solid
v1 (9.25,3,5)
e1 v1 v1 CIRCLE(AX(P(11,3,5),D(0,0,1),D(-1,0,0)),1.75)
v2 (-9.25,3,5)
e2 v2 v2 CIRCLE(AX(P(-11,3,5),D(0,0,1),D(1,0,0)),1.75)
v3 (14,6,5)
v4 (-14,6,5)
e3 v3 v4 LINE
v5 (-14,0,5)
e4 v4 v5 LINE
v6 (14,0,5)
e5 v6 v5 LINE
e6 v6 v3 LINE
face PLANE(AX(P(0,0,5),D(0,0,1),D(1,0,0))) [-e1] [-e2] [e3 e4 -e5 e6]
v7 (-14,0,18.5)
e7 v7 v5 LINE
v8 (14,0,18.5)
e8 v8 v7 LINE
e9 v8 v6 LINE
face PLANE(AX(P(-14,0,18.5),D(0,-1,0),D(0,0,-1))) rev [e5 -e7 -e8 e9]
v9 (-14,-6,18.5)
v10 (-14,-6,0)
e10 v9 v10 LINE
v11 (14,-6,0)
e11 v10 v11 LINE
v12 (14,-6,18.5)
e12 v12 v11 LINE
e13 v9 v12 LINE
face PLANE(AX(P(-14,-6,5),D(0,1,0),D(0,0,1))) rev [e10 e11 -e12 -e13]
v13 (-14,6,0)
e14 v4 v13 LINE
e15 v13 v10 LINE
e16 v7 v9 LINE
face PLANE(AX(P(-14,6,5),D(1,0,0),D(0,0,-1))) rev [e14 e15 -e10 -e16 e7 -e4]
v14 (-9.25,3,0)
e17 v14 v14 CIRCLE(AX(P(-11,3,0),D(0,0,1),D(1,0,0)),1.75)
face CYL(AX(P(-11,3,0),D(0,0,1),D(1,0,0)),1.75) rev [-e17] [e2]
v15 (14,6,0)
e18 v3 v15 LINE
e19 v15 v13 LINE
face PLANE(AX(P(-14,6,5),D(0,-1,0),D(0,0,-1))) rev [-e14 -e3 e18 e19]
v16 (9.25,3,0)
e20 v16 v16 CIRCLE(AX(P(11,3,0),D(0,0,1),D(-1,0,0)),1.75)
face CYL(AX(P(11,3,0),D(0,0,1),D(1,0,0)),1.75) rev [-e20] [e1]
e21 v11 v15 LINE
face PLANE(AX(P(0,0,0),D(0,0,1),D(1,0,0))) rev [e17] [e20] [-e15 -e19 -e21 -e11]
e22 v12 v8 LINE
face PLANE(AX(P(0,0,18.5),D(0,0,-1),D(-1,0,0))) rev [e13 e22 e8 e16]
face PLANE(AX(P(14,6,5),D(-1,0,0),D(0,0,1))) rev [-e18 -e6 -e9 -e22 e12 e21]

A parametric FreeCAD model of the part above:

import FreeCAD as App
import Part
import Sketcher
from FreeCAD import Vector

doc = App.newDocument("Part")
body = doc.addObject("PartDesign::Body", "Body")

# Sketch on XY plane
sketch1 = body.newObject("Sketcher::SketchObject", "Sketch")
sketch1.AttachmentSupport = (doc.getObject("XY_Plane"), [""])
sketch1.MapMode = "FlatFace"
sketch1.addGeometry(Part.LineSegment(Vector(-14, 6, 0), Vector(-14, -6, 0)), False)
sketch1.addGeometry(Part.LineSegment(Vector(-14, -6, 0), Vector(14, -6, 0)), False)
sketch1.addGeometry(Part.LineSegment(Vector(14, -6, 0), Vector(14, 6, 0)), False)
sketch1.addGeometry(Part.LineSegment(Vector(14, 6, 0), Vector(-14, 6, 0)), False)
sketch1.addConstraint(Sketcher.Constraint("Coincident", 0, 2, 1, 1))
sketch1.addConstraint(Sketcher.Constraint("Coincident", 1, 2, 2, 1))
sketch1.addConstraint(Sketcher.Constraint("Coincident", 2, 2, 3, 1))
sketch1.addConstraint(Sketcher.Constraint("Coincident", 3, 2, 0, 1))
sketch1.addConstraint(Sketcher.Constraint("Vertical", 0))
sketch1.addConstraint(Sketcher.Constraint("Horizontal", 1))
sketch1.addConstraint(Sketcher.Constraint("Vertical", 2))
sketch1.addConstraint(Sketcher.Constraint("Horizontal", 3))
sketch1.addConstraint(Sketcher.Constraint("Symmetric", 0, 2, 2, 2, -1, 1))
sketch1.addConstraint(Sketcher.Constraint("DistanceX", 1, 1, 1, 2, 28.0))
sketch1.addConstraint(Sketcher.Constraint("DistanceY", 0, 2, 0, 1, 12.0))
pad1 = body.newObject("PartDesign::Pad", "Pad")
pad1.Profile = sketch1
pad1.Length = 5

# Sketch on XY plane
sketch2 = body.newObject("Sketcher::SketchObject", "Sketch001")
sketch2.AttachmentSupport = (doc.getObject("XY_Plane"), [""])
sketch2.MapMode = "FlatFace"
sketch2.AttachmentOffset = App.Placement(Vector(0, 0, 5), App.Rotation())
sketch2.addGeometry(Part.LineSegment(Vector(-14, 0, 0), Vector(-14, -6, 0)), False)
sketch2.addGeometry(Part.LineSegment(Vector(-14, -6, 0), Vector(14, -6, 0)), False)
sketch2.addGeometry(Part.LineSegment(Vector(14, -6, 0), Vector(14, 0, 0)), False)
sketch2.addGeometry(Part.LineSegment(Vector(14, 0, 0), Vector(-14, 0, 0)), False)
sketch2.addConstraint(Sketcher.Constraint("Coincident", 0, 2, 1, 1))
sketch2.addConstraint(Sketcher.Constraint("Coincident", 1, 2, 2, 1))
sketch2.addConstraint(Sketcher.Constraint("Coincident", 2, 2, 3, 1))
sketch2.addConstraint(Sketcher.Constraint("Coincident", 3, 2, 0, 1))
sketch2.addConstraint(Sketcher.Constraint("Vertical", 0))
sketch2.addConstraint(Sketcher.Constraint("Horizontal", 1))
sketch2.addConstraint(Sketcher.Constraint("Vertical", 2))
sketch2.addConstraint(Sketcher.Constraint("Horizontal", 3))
sketch2.addConstraint(Sketcher.Constraint("Symmetric", 2, 2, 3, 2, -1, 1))
sketch2.addConstraint(Sketcher.Constraint("DistanceX", 1, 1, 1, 2, 28.0))
sketch2.addConstraint(Sketcher.Constraint("DistanceY", 0, 2, 0, 1, 6.0))
pad2 = body.newObject("PartDesign::Pad", "Pad001")
pad2.Profile = sketch2
pad2.Length = 13.5

# Sketch on XY plane
sketch3 = body.newObject("Sketcher::SketchObject", "Sketch002")
sketch3.AttachmentSupport = (doc.getObject("XY_Plane"), [""])
sketch3.MapMode = "FlatFace"
sketch3.AttachmentOffset = App.Placement(Vector(0, 0, 5), App.Rotation())
sketch3.addGeometry(Part.Circle(Vector(-11, 3, 0), Vector(0, 0, 1), 1.8), False)
sketch3.addGeometry(Part.Circle(Vector(11, 3, 0), Vector(0, 0, 1), 1.8), False)
sketch3.addConstraint(Sketcher.Constraint("Equal", 0, 1))
sketch3.addConstraint(Sketcher.Constraint("Symmetric", 0, 3, 1, 3, -2))
sketch3.addConstraint(Sketcher.Constraint("Diameter", 0, 3.5))
sketch3.addConstraint(Sketcher.Constraint("DistanceX", 0, 3, -1, 1, 11.0))
sketch3.addConstraint(Sketcher.Constraint("DistanceY", -1, 1, 0, 3, 3.0))
pocket1 = body.newObject("PartDesign::Pocket", "Pocket")
pocket1.Profile = sketch3
pocket1.Type = "ThroughAll"

doc.recompute()
